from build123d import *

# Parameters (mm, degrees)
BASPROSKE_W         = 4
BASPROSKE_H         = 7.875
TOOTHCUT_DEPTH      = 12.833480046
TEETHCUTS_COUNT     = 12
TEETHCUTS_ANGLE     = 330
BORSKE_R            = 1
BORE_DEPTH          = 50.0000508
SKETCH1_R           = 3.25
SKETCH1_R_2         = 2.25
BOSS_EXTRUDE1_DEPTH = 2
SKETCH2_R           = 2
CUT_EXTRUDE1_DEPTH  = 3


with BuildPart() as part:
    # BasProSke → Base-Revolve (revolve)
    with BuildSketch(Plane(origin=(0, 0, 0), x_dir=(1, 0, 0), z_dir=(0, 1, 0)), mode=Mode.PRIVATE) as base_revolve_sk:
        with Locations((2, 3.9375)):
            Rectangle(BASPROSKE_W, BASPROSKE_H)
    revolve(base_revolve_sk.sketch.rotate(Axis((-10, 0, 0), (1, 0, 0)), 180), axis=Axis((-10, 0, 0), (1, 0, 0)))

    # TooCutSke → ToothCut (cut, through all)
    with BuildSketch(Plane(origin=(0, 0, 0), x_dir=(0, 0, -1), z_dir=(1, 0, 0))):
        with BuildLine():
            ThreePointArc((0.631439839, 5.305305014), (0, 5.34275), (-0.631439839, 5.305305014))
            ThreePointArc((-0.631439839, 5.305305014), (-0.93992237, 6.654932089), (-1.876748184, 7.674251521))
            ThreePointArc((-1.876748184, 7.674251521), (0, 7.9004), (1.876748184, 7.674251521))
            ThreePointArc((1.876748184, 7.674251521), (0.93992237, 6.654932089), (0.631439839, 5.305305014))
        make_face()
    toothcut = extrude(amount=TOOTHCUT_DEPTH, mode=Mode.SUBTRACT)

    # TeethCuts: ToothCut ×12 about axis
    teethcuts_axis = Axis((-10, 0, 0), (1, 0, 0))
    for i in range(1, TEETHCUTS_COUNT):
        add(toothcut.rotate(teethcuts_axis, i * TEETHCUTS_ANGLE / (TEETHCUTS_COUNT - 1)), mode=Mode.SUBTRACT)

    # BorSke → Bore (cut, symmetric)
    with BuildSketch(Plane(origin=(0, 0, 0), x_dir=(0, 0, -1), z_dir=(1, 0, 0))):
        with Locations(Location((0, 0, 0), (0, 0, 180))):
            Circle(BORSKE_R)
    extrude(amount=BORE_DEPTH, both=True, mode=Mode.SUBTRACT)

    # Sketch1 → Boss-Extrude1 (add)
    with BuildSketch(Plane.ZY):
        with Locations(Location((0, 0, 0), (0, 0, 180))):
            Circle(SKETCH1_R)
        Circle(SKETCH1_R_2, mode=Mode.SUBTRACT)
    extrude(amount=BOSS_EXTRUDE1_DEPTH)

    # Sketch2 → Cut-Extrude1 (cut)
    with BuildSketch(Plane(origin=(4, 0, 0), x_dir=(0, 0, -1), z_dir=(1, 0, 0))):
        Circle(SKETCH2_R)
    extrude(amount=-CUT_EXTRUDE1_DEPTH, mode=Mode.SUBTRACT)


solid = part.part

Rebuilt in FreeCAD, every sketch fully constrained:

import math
import FreeCAD as App
import Part
import Sketcher
from FreeCAD import Vector


def add_polygon(sketch, points):
    """Adds a closed chain of lines whose ends are joined by coincident constraints."""
    first, n = sketch.GeometryCount, len(points)
    for a, b in zip(points, points[1:] + points[:1]):
        sketch.addGeometry(Part.LineSegment(App.Vector(*a, 0), App.Vector(*b, 0)), False)
    for i in range(n):
        sketch.addConstraint(Sketcher.Constraint("Coincident", first + i, 2, first + (i + 1) % n, 1))

doc = App.newDocument("Part")
params = doc.addObject("Spreadsheet::Sheet", "Params")
for row, (alias, value) in enumerate([
    ("sketch1_width", "4 mm"),
    ("revolution_angle", "360 deg"),
    ("sketch2_radius", "2.7 mm"),
    ("sketch3_diameter", "2 mm"),
    ("pocket2_length", "100.000102 mm"),
    ("sketch4_diameter", "6.5 mm"),
    ("sketch4_diameter2", "4.5 mm"),
    ("pad1_length", "2 mm"),
    ("sketch5_diameter", "4 mm"),
    ("pocket3_length", "3 mm"),
], start=1):
    params.set(f"A{row}", alias)
    params.set(f"B{row}", "=" + value)
    params.setAlias(f"B{row}", alias)

body = doc.addObject("PartDesign::Body", "Body")

sketch1 = body.newObject("Sketcher::SketchObject", "Sketch")
sketch1.AttachmentSupport = (doc.getObject("XZ_Plane"), [""])
sketch1.MapMode = "FlatFace"
add_polygon(sketch1, [(0, -7.9), (0, 0), (4, 0), (4, -7.9)])
sketch1.addConstraint([
    Sketcher.Constraint("Vertical", 0),
    Sketcher.Constraint("Horizontal", 1),
    Sketcher.Constraint("Vertical", 2),
    Sketcher.Constraint("Horizontal", 3),
    Sketcher.Constraint("Coincident", 0, 2, -1, 1),
    Sketcher.Constraint("DistanceX", 1, 1, 1, 2, 4.0),
    Sketcher.Constraint("DistanceY", 0, 1, 0, 2, 7.875),
])
sketch1.setExpression("Constraints[9]", "Params.sketch1_width")
revolution = body.newObject("PartDesign::Revolution", "Revolution")
revolution.Profile = sketch1
revolution.ReferenceAxis = (sketch1, ["H_Axis"])
revolution.setExpression("Angle", "Params.revolution_angle")

sketch2 = body.newObject("Sketcher::SketchObject", "Sketch001")
sketch2.AttachmentSupport = (doc.getObject("YZ_Plane"), [""])
sketch2.MapMode = "FlatFace"
sketch2.addGeometry([
    Part.ArcOfCircle(Part.Circle(Vector(0, 0, 0), Vector(0, 0, 1), 5.3), math.radians(-6.79), math.radians(6.79)),
    Part.ArcOfCircle(Part.Circle(Vector(5.4, -3.3, 0), Vector(0, 0, 1), 2.7), math.radians(33), math.radians(92)),
    Part.ArcOfCircle(Part.Circle(Vector(0, 0, 0), Vector(0, 0, 1), 7.9), math.radians(-14), math.radians(14)),
    Part.ArcOfCircle(Part.Circle(Vector(5.4, 3.3, 0), Vector(0, 0, 1), 2.7), math.radians(-92), math.radians(-33)),
], False)
sketch2.addConstraint([
    Sketcher.Constraint("Coincident", 0, 1, 1, 2),
    Sketcher.Constraint("Coincident", 1, 1, 2, 1),
    Sketcher.Constraint("Coincident", 2, 2, 3, 2),
    Sketcher.Constraint("Coincident", 3, 1, 0, 2),
    Sketcher.Constraint("Coincident", 0, 3, -1, 1),
    Sketcher.Constraint("Coincident", 2, 3, -1, 1),
    Sketcher.Constraint("Equal", 1, 3),
    Sketcher.Constraint("Symmetric", 1, 3, 3, 3, -1),
    Sketcher.Constraint("Radius", 1, 2.7),
    Sketcher.Constraint("Radius", 2, 7.9004),
    Sketcher.Constraint("Radius", 0, 5.34275),
    Sketcher.Constraint("DistanceX", 0, 1, 1, 3, 0.093301),
    Sketcher.Constraint("DistanceY", 0, 1, -1, 1, 0.63144),
])
sketch2.setExpression("Constraints[8]", "Params.sketch2_radius")
pocket1 = body.newObject("PartDesign::Pocket", "Pocket")
pocket1.Profile = sketch2
pocket1.Type = "ThroughAll"
pocket1.Reversed = True
doc.recompute()

polarpattern = body.newObject("PartDesign::PolarPattern", "PolarPattern")
polarpattern.Originals = [pocket1]
polarpattern.Axis = (doc.getObject("X_Axis"), [""])
polarpattern.Angle = 360
polarpattern.Occurrences = 12
body.Tip = polarpattern

sketch3 = body.newObject("Sketcher::SketchObject", "Sketch002")
sketch3.AttachmentSupport = (doc.getObject("YZ_Plane"), [""])
sketch3.MapMode = "FlatFace"
sketch3.addGeometry(Part.Circle(Vector(0, 0, 0), Vector(0, 0, 1), 1), False)
sketch3.addConstraint([
    Sketcher.Constraint("Coincident", 0, 3, -1, 1),
    Sketcher.Constraint("Diameter", 0, 2.0),
])
sketch3.setExpression("Constraints[1]", "Params.sketch3_diameter")
pocket2 = body.newObject("PartDesign::Pocket", "Pocket001")
pocket2.Profile = sketch3
pocket2.setExpression("Length", "Params.pocket2_length")
pocket2.Midplane = True

sketch4 = body.newObject("Sketcher::SketchObject", "Sketch003")
sketch4.AttachmentSupport = (doc.getObject("YZ_Plane"), [""])
sketch4.MapMode = "FlatFace"
sketch4.addGeometry([
    Part.Circle(Vector(0, 0, 0), Vector(0, 0, 1), 3.2),
    Part.Circle(Vector(0, 0, 0), Vector(0, 0, 1), 2.2),
], False)
sketch4.addConstraint([
    Sketcher.Constraint("Coincident", 0, 3, -1, 1),
    Sketcher.Constraint("Coincident", 1, 3, -1, 1),
    Sketcher.Constraint("Diameter", 0, 6.5),
    Sketcher.Constraint("Diameter", 1, 4.5),
])
sketch4.setExpression("Constraints[2]", "Params.sketch4_diameter")
sketch4.setExpression("Constraints[3]", "Params.sketch4_diameter2")
pad1 = body.newObject("PartDesign::Pad", "Pad")
pad1.Profile = sketch4
pad1.setExpression("Length", "Params.pad1_length")
pad1.Reversed = True

sketch5 = body.newObject("Sketcher::SketchObject", "Sketch004")
sketch5.AttachmentSupport = (doc.getObject("YZ_Plane"), [""])
sketch5.MapMode = "FlatFace"
sketch5.AttachmentOffset = App.Placement(Vector(0, 0, 4), App.Rotation())
sketch5.addGeometry(Part.Circle(Vector(0, 0, 0), Vector(0, 0, 1), 2), False)
sketch5.addConstraint([
    Sketcher.Constraint("Coincident", 0, 3, -1, 1),
    Sketcher.Constraint("Diameter", 0, 4.0),
])
sketch5.setExpression("Constraints[1]", "Params.sketch5_diameter")
pocket3 = body.newObject("PartDesign::Pocket", "Pocket002")
pocket3.Profile = sketch5
pocket3.setExpression("Length", "Params.pocket3_length")

doc.recompute()
